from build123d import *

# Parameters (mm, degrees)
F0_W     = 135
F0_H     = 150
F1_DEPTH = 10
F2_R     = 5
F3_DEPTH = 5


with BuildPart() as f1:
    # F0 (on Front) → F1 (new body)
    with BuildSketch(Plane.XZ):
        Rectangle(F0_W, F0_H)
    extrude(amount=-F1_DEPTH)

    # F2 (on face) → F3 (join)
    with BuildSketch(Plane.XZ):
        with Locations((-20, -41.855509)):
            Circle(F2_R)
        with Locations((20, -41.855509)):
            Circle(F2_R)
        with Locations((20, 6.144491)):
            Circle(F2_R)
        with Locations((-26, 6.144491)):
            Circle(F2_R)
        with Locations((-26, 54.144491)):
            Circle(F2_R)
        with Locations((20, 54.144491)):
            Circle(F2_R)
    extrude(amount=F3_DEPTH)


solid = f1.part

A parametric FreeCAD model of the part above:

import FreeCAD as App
import Part
import Sketcher
from FreeCAD import Vector
Q = App.Units.Quantity


def add_polygon(sketch, points):
    """Adds a closed chain of lines whose ends are joined by coincident constraints."""
    first, n = sketch.GeometryCount, len(points)
    for a, b in zip(points, points[1:] + points[:1]):
        sketch.addGeometry(Part.LineSegment(App.Vector(*a, 0), App.Vector(*b, 0)), False)
    for i in range(n):
        sketch.addConstraint(Sketcher.Constraint("Coincident", first + i, 2, first + (i + 1) % n, 1))

doc = App.newDocument("Part")
body = doc.addObject("PartDesign::Body", "Body")

# Sketch on XZ plane
sketch1 = body.newObject("Sketcher::SketchObject", "Sketch")
sketch1.AttachmentSupport = (doc.getObject("XZ_Plane"), [""])
sketch1.MapMode = "FlatFace"
add_polygon(sketch1, [(-67.5, 75), (-67.5, -75), (67.5, -75), (67.5, 75)])  # lines 0-3
sketch1.addConstraint([
    Sketcher.Constraint("Vertical", 0),
    Sketcher.Constraint("Horizontal", 1),
    Sketcher.Constraint("Vertical", 2),
    Sketcher.Constraint("Horizontal", 3),
    Sketcher.Constraint("Symmetric", 0, 2, 2, 2, -1, 1),
    Sketcher.Constraint("DistanceX", 1, 1, 1, 2, Q("135 mm")),
    Sketcher.Constraint("DistanceY", 0, 2, 0, 1, Q("150 mm")),
])
pad1 = body.newObject("PartDesign::Pad", "Pad")
pad1.Profile = sketch1
pad1.Length = 10
pad1.Reversed = True

# Sketch on XZ plane
sketch2 = body.newObject("Sketcher::SketchObject", "Sketch001")
sketch2.AttachmentSupport = (doc.getObject("XZ_Plane"), [""])
sketch2.MapMode = "FlatFace"
sketch2.addGeometry([
    Part.Circle(Vector(-20, -41.855509, 0), Vector(0, 0, 1), 5),  # 0
    Part.Circle(Vector(20, -41.855509, 0), Vector(0, 0, 1), 5),  # 1
    Part.Circle(Vector(20, 6.144491, 0), Vector(0, 0, 1), 5),  # 2
    Part.Circle(Vector(-26, 6.144491, 0), Vector(0, 0, 1), 5),  # 3
    Part.Circle(Vector(-26, 54.144491, 0), Vector(0, 0, 1), 5),  # 4
    Part.Circle(Vector(20, 54.144491, 0), Vector(0, 0, 1), 5),  # 5
], False)
sketch2.addConstraint([
    Sketcher.Constraint("Equal", 0, 1),
    Sketcher.Constraint("Equal", 1, 2),
    Sketcher.Constraint("Equal", 2, 3),
    Sketcher.Constraint("Equal", 3, 4),
    Sketcher.Constraint("Equal", 4, 5),
    Sketcher.Constraint("Symmetric", 0, 3, 1, 3, -2),
    Sketcher.Constraint("Horizontal", 2, 3, 3, 3),
    Sketcher.Constraint("Horizontal", 4, 3, 5, 3),
    Sketcher.Constraint("Vertical", 1, 3, 2, 3),
    Sketcher.Constraint("Vertical", 3, 3, 4, 3),
    Sketcher.Constraint("Vertical", 2, 3, 5, 3),
    Sketcher.Constraint("Diameter", 0, Q("10 mm")),
    Sketcher.Constraint("DistanceX", 0, 3, -1, 1, Q("20 mm")),
    Sketcher.Constraint("DistanceX", 3, 3, -1, 1, Q("26 mm")),
    Sketcher.Constraint("DistanceY", 1, 3, 2, 3, Q("48 mm")),
    Sketcher.Constraint("DistanceY", 3, 3, 4, 3, Q("48 mm")),
    Sketcher.Constraint("DistanceY", 0, 3, -1, 1, Q("41.855509 mm")),
])
pad2 = body.newObject("PartDesign::Pad", "Pad001")
pad2.Profile = sketch2
pad2.Length = 5

doc.recompute()
